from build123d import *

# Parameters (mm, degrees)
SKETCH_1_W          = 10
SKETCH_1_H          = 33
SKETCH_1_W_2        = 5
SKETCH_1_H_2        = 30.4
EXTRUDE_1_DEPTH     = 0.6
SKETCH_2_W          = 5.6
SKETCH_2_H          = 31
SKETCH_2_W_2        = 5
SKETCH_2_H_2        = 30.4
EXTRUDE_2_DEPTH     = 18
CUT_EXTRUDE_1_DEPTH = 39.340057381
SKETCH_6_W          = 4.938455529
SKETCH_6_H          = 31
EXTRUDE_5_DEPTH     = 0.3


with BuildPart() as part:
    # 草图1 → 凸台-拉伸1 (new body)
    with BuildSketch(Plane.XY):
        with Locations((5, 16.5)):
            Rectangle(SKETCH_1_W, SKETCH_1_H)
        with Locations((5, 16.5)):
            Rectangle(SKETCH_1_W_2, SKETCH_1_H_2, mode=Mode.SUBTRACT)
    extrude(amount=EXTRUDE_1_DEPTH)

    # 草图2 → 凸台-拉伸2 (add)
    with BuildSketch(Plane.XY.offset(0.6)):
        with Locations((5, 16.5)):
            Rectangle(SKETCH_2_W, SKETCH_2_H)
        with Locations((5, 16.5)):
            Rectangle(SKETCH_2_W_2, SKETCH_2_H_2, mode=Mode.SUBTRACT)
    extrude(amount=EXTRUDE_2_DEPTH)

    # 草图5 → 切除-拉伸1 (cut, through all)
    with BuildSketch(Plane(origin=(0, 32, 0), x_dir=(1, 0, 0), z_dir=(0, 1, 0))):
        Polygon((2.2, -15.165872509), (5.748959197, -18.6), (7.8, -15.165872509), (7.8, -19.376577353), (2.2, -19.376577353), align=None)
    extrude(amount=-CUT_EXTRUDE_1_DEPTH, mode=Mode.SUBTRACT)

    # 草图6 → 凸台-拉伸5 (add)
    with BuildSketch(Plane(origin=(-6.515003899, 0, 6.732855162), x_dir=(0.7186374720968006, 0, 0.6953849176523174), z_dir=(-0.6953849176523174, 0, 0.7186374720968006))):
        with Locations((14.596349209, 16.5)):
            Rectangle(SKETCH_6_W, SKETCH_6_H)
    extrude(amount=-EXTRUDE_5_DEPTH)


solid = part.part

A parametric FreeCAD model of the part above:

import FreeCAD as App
import Part
import Sketcher
from FreeCAD import Vector


def add_polygon(sketch, points):
    """Adds a closed chain of lines whose ends are joined by coincident constraints."""
    first, n = sketch.GeometryCount, len(points)
    for a, b in zip(points, points[1:] + points[:1]):
        sketch.addGeometry(Part.LineSegment(App.Vector(*a, 0), App.Vector(*b, 0)), False)
    for i in range(n):
        sketch.addConstraint(Sketcher.Constraint("Coincident", first + i, 2, first + (i + 1) % n, 1))

doc = App.newDocument("Part")
body = doc.addObject("PartDesign::Body", "Body")

# Sketch on XY plane
sketch1 = body.newObject("Sketcher::SketchObject", "Sketch")
sketch1.AttachmentSupport = (doc.getObject("XY_Plane"), [""])
sketch1.MapMode = "FlatFace"
add_polygon(sketch1, [(0, 33), (0, 0), (10, 0), (10, 33)])  # lines 0-3
add_polygon(sketch1, [(7.5, 1.3), (2.5, 1.3), (2.5, 31.7), (7.5, 31.7)])  # lines 4-7
sketch1.addConstraint([
    Sketcher.Constraint("Vertical", 0),
    Sketcher.Constraint("Horizontal", 1),
    Sketcher.Constraint("Vertical", 2),
    Sketcher.Constraint("Horizontal", 3),
    Sketcher.Constraint("Horizontal", 4),
    Sketcher.Constraint("Vertical", 5),
    Sketcher.Constraint("Horizontal", 6),
    Sketcher.Constraint("Vertical", 7),
    Sketcher.Constraint("Coincident", 0, 2, -1, 1),
    Sketcher.Constraint("DistanceX", 1, 1, 1, 2, 10.0),
    Sketcher.Constraint("DistanceX", 4, 2, 4, 1, 5.0),
    Sketcher.Constraint("DistanceY", 0, 2, 0, 1, 33.0),
    Sketcher.Constraint("DistanceY", 5, 1, 5, 2, 30.4),
    Sketcher.Constraint("DistanceX", -1, 1, 4, 2, 2.5),
    Sketcher.Constraint("DistanceY", -1, 1, 4, 2, 1.3),
])
pad1 = body.newObject("PartDesign::Pad", "Pad")
pad1.Profile = sketch1
pad1.Length = 0.6

# Sketch on XY plane
sketch2 = body.newObject("Sketcher::SketchObject", "Sketch001")
sketch2.AttachmentSupport = (doc.getObject("XY_Plane"), [""])
sketch2.MapMode = "FlatFace"
sketch2.AttachmentOffset = App.Placement(Vector(0, 0, 0.6), App.Rotation())
add_polygon(sketch2, [(2.2, 32), (2.2, 1), (7.8, 1), (7.8, 32)])  # lines 0-3
add_polygon(sketch2, [(7.5, 1.3), (2.5, 1.3), (2.5, 31.7), (7.5, 31.7)])  # lines 4-7
sketch2.addConstraint([
    Sketcher.Constraint("Vertical", 0),
    Sketcher.Constraint("Horizontal", 1),
    Sketcher.Constraint("Vertical", 2),
    Sketcher.Constraint("Horizontal", 3),
    Sketcher.Constraint("Horizontal", 4),
    Sketcher.Constraint("Vertical", 5),
    Sketcher.Constraint("Horizontal", 6),
    Sketcher.Constraint("Vertical", 7),
    Sketcher.Constraint("DistanceX", 4, 2, 4, 1, 5.0),
    Sketcher.Constraint("DistanceY", 0, 2, 0, 1, 31.0),
    Sketcher.Constraint("DistanceX", 1, 1, 1, 2, 5.6),
    Sketcher.Constraint("DistanceY", 5, 1, 5, 2, 30.4),
    Sketcher.Constraint("DistanceY", -1, 1, 0, 2, 1.0),
    Sketcher.Constraint("DistanceX", -1, 1, 0, 2, 2.2),
    Sketcher.Constraint("DistanceX", -1, 1, 4, 2, 2.5),
    Sketcher.Constraint("DistanceY", -1, 1, 4, 2, 1.3),
])
pad2 = body.newObject("PartDesign::Pad", "Pad001")
pad2.Profile = sketch2
pad2.Length = 18

# Sketch on XZ plane
sketch3 = body.newObject("Sketcher::SketchObject", "Sketch002")
sketch3.AttachmentSupport = (doc.getObject("XZ_Plane"), [""])
sketch3.MapMode = "FlatFace"
sketch3.AttachmentOffset = App.Placement(Vector(0, 0, -32), App.Rotation())
add_polygon(sketch3, [(5.748959, 18.6), (2.2, 15.165873), (2.2, 19.376577), (7.8, 19.376577), (7.8, 15.165873)])  # lines 0-4
sketch3.addConstraint([
    Sketcher.Constraint("Vertical", 1),
    Sketcher.Constraint("Horizontal", 2),
    Sketcher.Constraint("Vertical", 3),
    Sketcher.Constraint("Horizontal", 0, 2, 3, 2),
    Sketcher.Constraint("Distance", 4, 4.0),
    Sketcher.Constraint("DistanceX", 2, 1, 2, 2, 5.6),
    Sketcher.Constraint("DistanceX", -1, 1, 0, 2, 2.2),
    Sketcher.Constraint("DistanceY", -1, 1, 4, 2, 18.6),
    Sketcher.Constraint("DistanceY", 1, 1, 1, 2, 4.210705),
    Sketcher.Constraint("DistanceX", -1, 1, 4, 2, 5.748959),
])
pocket1 = body.newObject("PartDesign::Pocket", "Pocket")
pocket1.Profile = sketch3
pocket1.Type = "ThroughAll"
pocket1.Reversed = True

# Sketch on an angled plane
sketch4 = body.newObject("Sketcher::SketchObject", "Sketch003")
sketch4.Placement = App.Placement(Vector(-6.515004, 0, 6.732855), App.Rotation(Vector(0.718637472, 0, 0.695384918), Vector(0, 1, 0), Vector(-0.695384918, 0, 0.718637472), "ZXY"))
add_polygon(sketch4, [(12.127121, 32), (12.127121, 1), (17.065577, 1), (17.065577, 32)])  # lines 0-3
sketch4.addConstraint([
    Sketcher.Constraint("Vertical", 0),
    Sketcher.Constraint("Horizontal", 1),
    Sketcher.Constraint("Vertical", 2),
    Sketcher.Constraint("Horizontal", 3),
    Sketcher.Constraint("DistanceY", 0, 2, 0, 1, 31.0),
    Sketcher.Constraint("DistanceY", -1, 1, 0, 2, 1.0),
    Sketcher.Constraint("DistanceX", 1, 1, 1, 2, 4.938456),
    Sketcher.Constraint("DistanceX", -1, 1, 0, 2, 12.127121),
])
pad3 = body.newObject("PartDesign::Pad", "Pad002")
pad3.Profile = sketch4
pad3.Length = 0.3
pad3.Reversed = True

doc.recompute()
